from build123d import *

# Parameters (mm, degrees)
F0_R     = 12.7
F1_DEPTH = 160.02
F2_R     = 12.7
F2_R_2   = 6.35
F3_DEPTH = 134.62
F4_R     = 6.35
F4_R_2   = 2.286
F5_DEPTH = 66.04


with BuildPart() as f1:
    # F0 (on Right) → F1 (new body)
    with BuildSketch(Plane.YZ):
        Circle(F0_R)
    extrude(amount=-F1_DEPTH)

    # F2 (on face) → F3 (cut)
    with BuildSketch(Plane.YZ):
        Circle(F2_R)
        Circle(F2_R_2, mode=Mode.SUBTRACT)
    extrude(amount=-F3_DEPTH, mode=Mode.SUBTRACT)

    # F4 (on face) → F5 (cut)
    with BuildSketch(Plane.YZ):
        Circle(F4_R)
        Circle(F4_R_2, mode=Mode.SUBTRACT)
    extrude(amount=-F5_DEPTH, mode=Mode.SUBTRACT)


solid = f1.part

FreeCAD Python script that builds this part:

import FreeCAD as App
import Part
import Sketcher
from FreeCAD import Vector
Q = App.Units.Quantity

doc = App.newDocument("Part")
params = doc.addObject("Spreadsheet::Sheet", "Params")
for row, (alias, value) in enumerate([
    ("sketch1_diameter", "1 in"),
    ("pad1_length", "6.3 in"),
    ("sketch2_diameter", "1 in"),
    ("sketch2_diameter2", "0.5 in"),
    ("pocket1_length", "5.3 in"),
    ("sketch3_diameter", "0.5 in"),
    ("sketch3_diameter2", "0.18 in"),
    ("pocket2_length", "2.6 in"),
], start=1):
    params.set(f"A{row}", alias)
    params.set(f"B{row}", "=" + value)
    params.setAlias(f"B{row}", alias)

body = doc.addObject("PartDesign::Body", "Body")

# Sketch on YZ plane
sketch1 = body.newObject("Sketcher::SketchObject", "Sketch")
sketch1.AttachmentSupport = (doc.getObject("YZ_Plane"), [""])
sketch1.MapMode = "FlatFace"
sketch1.addGeometry(Part.Circle(Vector(0, 0, 0), Vector(0, 0, 1), 13), False)
sketch1.addConstraint([
    Sketcher.Constraint("Coincident", 0, 3, -1, 1),
    Sketcher.Constraint("Diameter", 0, Q("1 in")),
])
sketch1.setExpression("Constraints[1]", "Params.sketch1_diameter")
pad1 = body.newObject("PartDesign::Pad", "Pad")
pad1.Profile = sketch1
pad1.setExpression("Length", "Params.pad1_length")
pad1.Reversed = True

# Sketch on YZ plane
sketch2 = body.newObject("Sketcher::SketchObject", "Sketch001")
sketch2.AttachmentSupport = (doc.getObject("YZ_Plane"), [""])
sketch2.MapMode = "FlatFace"
sketch2.addGeometry([
    Part.Circle(Vector(0, 0, 0), Vector(0, 0, 1), 13),
    Part.Circle(Vector(0, 0, 0), Vector(0, 0, 1), 6),
], False)
sketch2.addConstraint([
    Sketcher.Constraint("Coincident", 0, 3, -1, 1),
    Sketcher.Constraint("Coincident", 1, 3, -1, 1),
    Sketcher.Constraint("Diameter", 0, Q("1 in")),
    Sketcher.Constraint("Diameter", 1, Q("0.5 in")),
])
sketch2.setExpression("Constraints[2]", "Params.sketch2_diameter")
sketch2.setExpression("Constraints[3]", "Params.sketch2_diameter2")
pocket1 = body.newObject("PartDesign::Pocket", "Pocket")
pocket1.Profile = sketch2
pocket1.setExpression("Length", "Params.pocket1_length")

# Sketch on YZ plane
sketch3 = body.newObject("Sketcher::SketchObject", "Sketch002")
sketch3.AttachmentSupport = (doc.getObject("YZ_Plane"), [""])
sketch3.MapMode = "FlatFace"
sketch3.addGeometry([
    Part.Circle(Vector(0, 0, 0), Vector(0, 0, 1), 6.3),
    Part.Circle(Vector(0, 0, 0), Vector(0, 0, 1), 2.3),
], False)
sketch3.addConstraint([
    Sketcher.Constraint("Coincident", 0, 3, -1, 1),
    Sketcher.Constraint("Coincident", 1, 3, -1, 1),
    Sketcher.Constraint("Diameter", 0, Q("0.5 in")),
    Sketcher.Constraint("Diameter", 1, Q("0.18 in")),
])
sketch3.setExpression("Constraints[2]", "Params.sketch3_diameter")
sketch3.setExpression("Constraints[3]", "Params.sketch3_diameter2")
pocket2 = body.newObject("PartDesign::Pocket", "Pocket001")
pocket2.Profile = sketch3
pocket2.setExpression("Length", "Params.pocket2_length")

doc.recompute()
